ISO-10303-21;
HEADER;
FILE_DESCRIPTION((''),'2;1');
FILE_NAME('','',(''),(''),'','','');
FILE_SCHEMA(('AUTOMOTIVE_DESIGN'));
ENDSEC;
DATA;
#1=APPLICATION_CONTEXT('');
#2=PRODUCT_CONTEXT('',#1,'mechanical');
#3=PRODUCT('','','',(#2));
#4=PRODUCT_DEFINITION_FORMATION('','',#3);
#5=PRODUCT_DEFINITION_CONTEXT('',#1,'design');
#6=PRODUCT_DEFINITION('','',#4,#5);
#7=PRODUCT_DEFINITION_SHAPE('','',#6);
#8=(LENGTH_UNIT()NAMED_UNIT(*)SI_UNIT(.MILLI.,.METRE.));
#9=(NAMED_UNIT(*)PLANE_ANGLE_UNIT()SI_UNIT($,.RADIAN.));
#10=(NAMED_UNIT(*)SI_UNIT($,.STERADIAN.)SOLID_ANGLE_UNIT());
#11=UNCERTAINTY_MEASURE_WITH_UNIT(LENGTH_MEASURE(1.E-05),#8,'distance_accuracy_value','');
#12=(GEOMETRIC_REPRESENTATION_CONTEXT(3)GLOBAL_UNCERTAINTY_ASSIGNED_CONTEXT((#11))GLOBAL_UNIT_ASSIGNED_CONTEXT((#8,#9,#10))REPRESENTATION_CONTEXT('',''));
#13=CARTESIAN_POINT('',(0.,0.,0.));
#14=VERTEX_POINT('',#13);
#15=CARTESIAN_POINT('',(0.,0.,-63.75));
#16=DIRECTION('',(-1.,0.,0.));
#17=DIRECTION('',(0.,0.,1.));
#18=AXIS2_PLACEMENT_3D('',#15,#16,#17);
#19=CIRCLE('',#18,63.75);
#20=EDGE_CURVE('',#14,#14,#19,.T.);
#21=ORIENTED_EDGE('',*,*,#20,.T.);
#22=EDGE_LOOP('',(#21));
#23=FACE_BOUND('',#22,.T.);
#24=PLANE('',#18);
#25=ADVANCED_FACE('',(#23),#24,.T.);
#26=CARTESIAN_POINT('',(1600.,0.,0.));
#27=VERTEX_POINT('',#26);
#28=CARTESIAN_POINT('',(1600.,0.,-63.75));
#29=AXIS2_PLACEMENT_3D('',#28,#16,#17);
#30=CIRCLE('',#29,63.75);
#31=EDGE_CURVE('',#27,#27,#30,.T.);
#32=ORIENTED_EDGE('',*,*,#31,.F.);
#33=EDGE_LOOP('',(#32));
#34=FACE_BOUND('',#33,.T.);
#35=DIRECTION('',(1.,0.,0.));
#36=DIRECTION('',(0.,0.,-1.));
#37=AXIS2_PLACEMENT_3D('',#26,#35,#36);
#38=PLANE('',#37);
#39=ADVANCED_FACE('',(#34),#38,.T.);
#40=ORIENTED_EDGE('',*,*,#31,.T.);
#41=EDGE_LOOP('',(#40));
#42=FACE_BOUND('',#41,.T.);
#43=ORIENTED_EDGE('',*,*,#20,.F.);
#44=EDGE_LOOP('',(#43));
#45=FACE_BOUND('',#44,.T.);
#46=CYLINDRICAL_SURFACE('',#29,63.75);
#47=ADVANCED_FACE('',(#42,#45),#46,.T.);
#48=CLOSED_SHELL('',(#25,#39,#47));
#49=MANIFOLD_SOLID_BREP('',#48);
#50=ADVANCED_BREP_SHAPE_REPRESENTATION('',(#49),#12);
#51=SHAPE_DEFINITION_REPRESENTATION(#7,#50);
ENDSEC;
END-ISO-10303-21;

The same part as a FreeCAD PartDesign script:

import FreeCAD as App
import Part
import Sketcher
Q = App.Units.Quantity

doc = App.newDocument("Part")
body = doc.addObject("PartDesign::Body", "Body")

sketch1 = doc.addObject("Sketcher::SketchObject", "Sketch")
body.addObject(sketch1)
sketch1.AttachmentSupport = (doc.XZ_Plane, [""])
sketch1.MapMode = "FlatFace"
sketch1.addGeometry([
    Part.LineSegment(App.Vector(0, -64, 0), App.Vector(0, 0, 0)),
    Part.LineSegment(App.Vector(0, 0, 0), App.Vector(1600, 0, 0)),
    Part.LineSegment(App.Vector(1600, 0, 0), App.Vector(1600, -64, 0)),
    Part.LineSegment(App.Vector(1600, -64, 0), App.Vector(0, -64, 0)),
], False)
sketch1.addGeometry(Part.LineSegment(App.Vector(1600, -64, 0), App.Vector(0, -64, 0)), True)
sketch1.addConstraint([
    Sketcher.Constraint("Coincident", 0, 2, 1, 1),
    Sketcher.Constraint("Coincident", 1, 2, 2, 1),
    Sketcher.Constraint("Coincident", 2, 2, 3, 1),
    Sketcher.Constraint("Coincident", 3, 2, 0, 1),
    Sketcher.Constraint("Vertical", 0),
    Sketcher.Constraint("Horizontal", 1),
    Sketcher.Constraint("Vertical", 2),
    Sketcher.Constraint("Horizontal", 3),
    Sketcher.Constraint("Horizontal", 4),
    Sketcher.Constraint("Coincident", 0, 2, -1, 1),
    Sketcher.Constraint("Coincident", 4, 1, 2, 2),
    Sketcher.Constraint("PointOnObject", 4, 2, -2),
    Sketcher.Constraint("DistanceX", 1, 1, 1, 2, Q("1600 mm")),
    Sketcher.Constraint("DistanceY", 0, 1, 0, 2, Q("63.75 mm")),
])
revolution = doc.addObject("PartDesign::Revolution", "Revolution")
body.addObject(revolution)
revolution.Profile = sketch1
revolution.ReferenceAxis = (sketch1, ["Axis0"])
revolution.Angle = 360

doc.recompute()
